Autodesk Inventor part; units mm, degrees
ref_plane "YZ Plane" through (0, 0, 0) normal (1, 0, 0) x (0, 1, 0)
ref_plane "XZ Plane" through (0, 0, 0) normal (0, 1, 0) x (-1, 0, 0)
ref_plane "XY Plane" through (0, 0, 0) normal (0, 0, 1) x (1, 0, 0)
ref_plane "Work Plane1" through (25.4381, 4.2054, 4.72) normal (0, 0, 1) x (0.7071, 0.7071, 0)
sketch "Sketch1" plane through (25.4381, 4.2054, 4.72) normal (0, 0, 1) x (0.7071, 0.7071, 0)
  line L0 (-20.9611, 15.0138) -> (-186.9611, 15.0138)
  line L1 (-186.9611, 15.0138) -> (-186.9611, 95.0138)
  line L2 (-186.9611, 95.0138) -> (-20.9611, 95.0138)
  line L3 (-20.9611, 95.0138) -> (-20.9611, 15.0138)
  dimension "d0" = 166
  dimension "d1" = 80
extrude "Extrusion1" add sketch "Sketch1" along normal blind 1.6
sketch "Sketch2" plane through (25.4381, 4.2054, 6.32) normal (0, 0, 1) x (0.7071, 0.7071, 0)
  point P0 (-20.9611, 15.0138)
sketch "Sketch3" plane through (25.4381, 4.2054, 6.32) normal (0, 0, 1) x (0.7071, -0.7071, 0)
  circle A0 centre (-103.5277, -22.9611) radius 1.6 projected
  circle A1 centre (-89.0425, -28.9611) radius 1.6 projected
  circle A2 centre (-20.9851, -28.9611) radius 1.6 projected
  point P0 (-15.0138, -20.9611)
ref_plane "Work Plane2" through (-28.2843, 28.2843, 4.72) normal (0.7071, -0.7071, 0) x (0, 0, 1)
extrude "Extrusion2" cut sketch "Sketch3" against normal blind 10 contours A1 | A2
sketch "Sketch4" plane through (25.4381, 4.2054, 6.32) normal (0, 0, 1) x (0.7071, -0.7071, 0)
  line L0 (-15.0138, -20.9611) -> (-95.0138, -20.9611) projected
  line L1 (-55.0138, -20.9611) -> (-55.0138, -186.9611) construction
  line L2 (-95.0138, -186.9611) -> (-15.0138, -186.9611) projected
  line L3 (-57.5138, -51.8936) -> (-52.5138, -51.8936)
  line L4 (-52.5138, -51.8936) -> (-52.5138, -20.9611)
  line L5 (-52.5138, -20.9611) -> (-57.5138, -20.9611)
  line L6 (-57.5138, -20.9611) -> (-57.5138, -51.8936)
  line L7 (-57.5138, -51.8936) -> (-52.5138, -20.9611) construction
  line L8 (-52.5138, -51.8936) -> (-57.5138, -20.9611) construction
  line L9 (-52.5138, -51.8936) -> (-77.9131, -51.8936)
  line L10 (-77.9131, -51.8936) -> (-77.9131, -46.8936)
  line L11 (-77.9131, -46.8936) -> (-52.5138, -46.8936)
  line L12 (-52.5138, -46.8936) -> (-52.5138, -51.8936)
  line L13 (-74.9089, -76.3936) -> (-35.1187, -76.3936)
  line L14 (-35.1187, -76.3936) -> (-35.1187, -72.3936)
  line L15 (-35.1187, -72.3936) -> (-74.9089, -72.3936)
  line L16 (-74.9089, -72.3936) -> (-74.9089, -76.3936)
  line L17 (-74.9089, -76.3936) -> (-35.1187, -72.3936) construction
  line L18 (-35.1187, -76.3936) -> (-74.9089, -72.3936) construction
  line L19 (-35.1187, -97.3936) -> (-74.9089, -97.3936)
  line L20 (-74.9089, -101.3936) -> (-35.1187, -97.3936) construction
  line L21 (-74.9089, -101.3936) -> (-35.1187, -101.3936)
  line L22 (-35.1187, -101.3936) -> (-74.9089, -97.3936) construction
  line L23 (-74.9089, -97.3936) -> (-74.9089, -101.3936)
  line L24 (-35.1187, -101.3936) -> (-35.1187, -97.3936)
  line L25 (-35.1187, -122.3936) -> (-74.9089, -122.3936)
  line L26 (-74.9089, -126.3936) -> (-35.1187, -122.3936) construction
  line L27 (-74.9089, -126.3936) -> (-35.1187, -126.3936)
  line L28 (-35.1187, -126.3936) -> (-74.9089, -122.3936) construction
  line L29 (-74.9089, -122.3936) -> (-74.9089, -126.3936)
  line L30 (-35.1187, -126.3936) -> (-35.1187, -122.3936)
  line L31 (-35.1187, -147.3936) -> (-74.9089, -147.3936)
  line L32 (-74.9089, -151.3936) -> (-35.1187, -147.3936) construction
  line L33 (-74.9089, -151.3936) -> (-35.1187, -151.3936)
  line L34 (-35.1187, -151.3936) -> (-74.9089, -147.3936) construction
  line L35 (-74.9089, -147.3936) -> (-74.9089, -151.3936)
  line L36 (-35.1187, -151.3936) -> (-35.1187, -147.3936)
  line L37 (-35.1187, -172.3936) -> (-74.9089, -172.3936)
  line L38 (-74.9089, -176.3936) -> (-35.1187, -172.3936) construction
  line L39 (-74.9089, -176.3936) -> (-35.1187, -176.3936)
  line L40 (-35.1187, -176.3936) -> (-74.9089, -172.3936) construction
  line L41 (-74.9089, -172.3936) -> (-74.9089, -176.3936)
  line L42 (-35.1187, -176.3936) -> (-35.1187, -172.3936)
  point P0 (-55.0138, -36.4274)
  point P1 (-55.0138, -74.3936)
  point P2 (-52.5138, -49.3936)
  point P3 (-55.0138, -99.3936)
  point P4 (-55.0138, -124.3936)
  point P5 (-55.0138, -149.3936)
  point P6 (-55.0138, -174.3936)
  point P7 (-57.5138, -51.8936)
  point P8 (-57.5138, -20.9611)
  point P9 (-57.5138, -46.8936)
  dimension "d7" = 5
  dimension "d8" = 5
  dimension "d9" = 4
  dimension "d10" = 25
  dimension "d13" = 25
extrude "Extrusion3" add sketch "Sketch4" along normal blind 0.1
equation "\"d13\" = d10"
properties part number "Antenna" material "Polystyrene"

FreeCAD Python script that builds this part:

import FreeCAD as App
import Part
import Sketcher

V = App.Vector
Q = App.Units.Quantity

doc = App.newDocument("Part")
body = doc.addObject("PartDesign::Body", "Body")

sketch1 = doc.addObject("Sketcher::SketchObject", "Sketch")
body.addObject(sketch1)
sketch1.AttachmentSupport = (doc.XY_Plane, [""])
sketch1.MapMode = "FlatFace"
sketch1.AttachmentOffset = App.Placement(V(0, 0, 4.72), App.Rotation())
sketch1.addGeometry([
    Part.LineSegment(V(-117, -117, 0), V(0, 0, 0)),
    Part.LineSegment(V(0, 0, 0), V(-57, 57, 0)),
    Part.LineSegment(V(-57, 57, 0), V(-174, -61, 0)),
    Part.LineSegment(V(-174, -61, 0), V(-117, -117, 0)),
], False)
sketch1.addConstraint([
    Sketcher.Constraint("Coincident", 0, 2, 1, 1),
    Sketcher.Constraint("Coincident", 1, 2, 2, 1),
    Sketcher.Constraint("Coincident", 2, 2, 3, 1),
    Sketcher.Constraint("Coincident", 3, 2, 0, 1),
    Sketcher.Constraint("Coincident", 0, 2, -1, 1),
    Sketcher.Constraint("Perpendicular", 0, 1),
    Sketcher.Constraint("Perpendicular", 1, 2),
    Sketcher.Constraint("Perpendicular", 2, 3),
    Sketcher.Constraint("Distance", 0, Q("166 mm")),
    Sketcher.Constraint("Distance", 1, Q("80 mm")),
    Sketcher.Constraint("Angle", 0, Q("45 deg")),
])
pad1 = doc.addObject("PartDesign::Pad", "Pad")
body.addObject(pad1)
pad1.Profile = sketch1
pad1.Length = 1.6

sketch2 = doc.addObject("Sketcher::SketchObject", "Sketch001")
body.addObject(sketch2)
sketch2.AttachmentSupport = (doc.XY_Plane, [""])
sketch2.MapMode = "FlatFace"
sketch2.AttachmentOffset = App.Placement(V(0, 0, 6.32), App.Rotation())
sketch2.addGeometry([
    Part.Circle(V(-58, 46.7, 0), V(0, 0, 1), 1.6),
    Part.Circle(V(-9.9, -1.4, 0), V(0, 0, 1), 1.6),
], False)
sketch2.addConstraint([
    Sketcher.Constraint("Equal", 0, 1),
    Sketcher.Constraint("Diameter", 0, Q("3.2 mm")),
    Sketcher.Constraint("DistanceX", 0, 3, -1, 1, Q("58.003 mm")),
    Sketcher.Constraint("DistanceY", -1, 1, 0, 3, Q("46.6894 mm")),
    Sketcher.Constraint("DistanceX", 1, 3, -1, 1, Q("9.8792 mm")),
    Sketcher.Constraint("DistanceY", 1, 3, -1, 1, Q("1.4345 mm")),
])
pocket1 = doc.addObject("PartDesign::Pocket", "Pocket")
body.addObject(pocket1)
pocket1.Profile = sketch2
pocket1.Length = 10

sketch3 = doc.addObject("Sketcher::SketchObject", "Sketch002")
body.addObject(sketch3)
sketch3.AttachmentSupport = (doc.XY_Plane, [""])
sketch3.MapMode = "FlatFace"
sketch3.AttachmentOffset = App.Placement(V(0, 0, 6.32), App.Rotation())
sketch3.addGeometry([
    Part.LineSegment(V(-26.5, 26.5, 0), V(-30.1, 30.1, 0)),
    Part.LineSegment(V(-30.1, 30.1, 0), V(-48.4, 11.7, 0)),
    Part.LineSegment(V(-48.4, 11.7, 0), V(-62.8, 26.1, 0)),
    Part.LineSegment(V(-62.8, 26.1, 0), V(-66.3, 22.6, 0)),
    Part.LineSegment(V(-66.3, 22.6, 0), V(-48.4, 4.6, 0)),
    Part.LineSegment(V(-48.4, 4.6, 0), V(-26.5, 26.5, 0)),
    Part.LineSegment(V(-78.7, 6, 0), V(-81.5, 3.2, 0)),
    Part.LineSegment(V(-81.5, 3.2, 0), V(-53.4, -25, 0)),
    Part.LineSegment(V(-53.4, -25, 0), V(-50.6, -22.2, 0)),
    Part.LineSegment(V(-50.6, -22.2, 0), V(-78.7, 6, 0)),
    Part.LineSegment(V(-71.1, -42.7, 0), V(-68.3, -39.8, 0)),
    Part.LineSegment(V(-68.3, -39.8, 0), V(-96.4, -11.7, 0)),
    Part.LineSegment(V(-96.4, -11.7, 0), V(-99.2, -14.5, 0)),
    Part.LineSegment(V(-99.2, -14.5, 0), V(-71.1, -42.7, 0)),
    Part.LineSegment(V(-88.8, -60.3, 0), V(-85.9, -57.5, 0)),
    Part.LineSegment(V(-85.9, -57.5, 0), V(-114.1, -29.4, 0)),
    Part.LineSegment(V(-114.1, -29.4, 0), V(-116.9, -32.2, 0)),
    Part.LineSegment(V(-116.9, -32.2, 0), V(-88.8, -60.3, 0)),
    Part.LineSegment(V(-106.4, -78, 0), V(-103.6, -75.2, 0)),
    Part.LineSegment(V(-103.6, -75.2, 0), V(-131.8, -47, 0)),
    Part.LineSegment(V(-131.8, -47, 0), V(-134.6, -49.9, 0)),
    Part.LineSegment(V(-134.6, -49.9, 0), V(-106.4, -78, 0)),
    Part.LineSegment(V(-124.1, -95.7, 0), V(-121.3, -92.9, 0)),
    Part.LineSegment(V(-121.3, -92.9, 0), V(-149.4, -64.7, 0)),
    Part.LineSegment(V(-149.4, -64.7, 0), V(-152.3, -67.6, 0)),
    Part.LineSegment(V(-152.3, -67.6, 0), V(-124.1, -95.7, 0)),
], False)
sketch3.addConstraint([
    Sketcher.Constraint("Coincident", 0, 2, 1, 1),
    Sketcher.Constraint("Coincident", 1, 2, 2, 1),
    Sketcher.Constraint("Coincident", 2, 2, 3, 1),
    Sketcher.Constraint("Coincident", 3, 2, 4, 1),
    Sketcher.Constraint("Coincident", 4, 2, 5, 1),
    Sketcher.Constraint("Coincident", 5, 2, 0, 1),
    Sketcher.Constraint("Coincident", 6, 2, 7, 1),
    Sketcher.Constraint("Coincident", 7, 2, 8, 1),
    Sketcher.Constraint("Coincident", 8, 2, 9, 1),
    Sketcher.Constraint("Coincident", 9, 2, 6, 1),
    Sketcher.Constraint("Coincident", 10, 2, 11, 1),
    Sketcher.Constraint("Coincident", 11, 2, 12, 1),
    Sketcher.Constraint("Coincident", 12, 2, 13, 1),
    Sketcher.Constraint("Coincident", 13, 2, 10, 1),
    Sketcher.Constraint("Coincident", 14, 2, 15, 1),
    Sketcher.Constraint("Coincident", 15, 2, 16, 1),
    Sketcher.Constraint("Coincident", 16, 2, 17, 1),
    Sketcher.Constraint("Coincident", 17, 2, 14, 1),
    Sketcher.Constraint("Coincident", 18, 2, 19, 1),
    Sketcher.Constraint("Coincident", 19, 2, 20, 1),
    Sketcher.Constraint("Coincident", 20, 2, 21, 1),
    Sketcher.Constraint("Coincident", 21, 2, 18, 1),
    Sketcher.Constraint("Coincident", 22, 2, 23, 1),
    Sketcher.Constraint("Coincident", 23, 2, 24, 1),
    Sketcher.Constraint("Coincident", 24, 2, 25, 1),
    Sketcher.Constraint("Coincident", 25, 2, 22, 1),
    Sketcher.Constraint("Perpendicular", 0, 1),
    Sketcher.Constraint("Perpendicular", 1, 2),
    Sketcher.Constraint("Perpendicular", 2, 3),
    Sketcher.Constraint("Perpendicular", 3, 4),
    Sketcher.Constraint("Perpendicular", 4, 5),
    Sketcher.Constraint("Parallel", 5, 6),
    Sketcher.Constraint("Perpendicular", 6, 7),
    Sketcher.Constraint("Perpendicular", 7, 8),
    Sketcher.Constraint("Perpendicular", 8, 9),
    Sketcher.Constraint("Perpendicular", 9, 10),
    Sketcher.Constraint("Perpendicular", 10, 11),
    Sketcher.Constraint("Perpendicular", 11, 12),
    Sketcher.Constraint("Perpendicular", 12, 13),
    Sketcher.Constraint("Perpendicular", 13, 14),
    Sketcher.Constraint("Perpendicular", 14, 15),
    Sketcher.Constraint("Perpendicular", 15, 16),
    Sketcher.Constraint("Perpendicular", 16, 17),
    Sketcher.Constraint("Perpendicular", 17, 18),
    Sketcher.Constraint("Perpendicular", 18, 19),
    Sketcher.Constraint("Perpendicular", 19, 20),
    Sketcher.Constraint("Perpendicular", 20, 21),
    Sketcher.Constraint("Perpendicular", 21, 22),
    Sketcher.Constraint("Perpendicular", 22, 23),
    Sketcher.Constraint("Perpendicular", 23, 24),
    Sketcher.Constraint("Perpendicular", 24, 25),
    Sketcher.Constraint("Vertical", 1, 2, 4, 2),
    Sketcher.Constraint("Equal", 0, 3),
    Sketcher.Constraint("Equal", 8, 10),
    Sketcher.Constraint("Equal", 9, 11),
    Sketcher.Constraint("Equal", 12, 14),
    Sketcher.Constraint("Equal", 13, 15),
    Sketcher.Constraint("Equal", 16, 18),
    Sketcher.Constraint("Equal", 17, 19),
    Sketcher.Constraint("Equal", 20, 22),
    Sketcher.Constraint("Equal", 21, 23),
    Sketcher.Constraint("Distance", 0, Q("5 mm")),
    Sketcher.Constraint("Distance", 6, Q("4 mm")),
    Sketcher.Constraint("DistanceX", 14, 2, -1, 1, Q("85.94 mm")),
    Sketcher.Constraint("DistanceX", 3, 2, 1, 2, Q("17.96 mm")),
    Sketcher.Constraint("DistanceY", 9, 2, 3, 2, Q("16.62 mm")),
    Sketcher.Constraint("DistanceX", 0, 2, -1, 1, Q("30.052 mm")),
    Sketcher.Constraint("DistanceY", -1, 1, 0, 2, Q("30.052 mm")),
    Sketcher.Constraint("DistanceX", 1, 2, -1, 1, Q("48.389 mm")),
    Sketcher.Constraint("DistanceX", 6, 2, -1, 1, Q("81.549 mm")),
    Sketcher.Constraint("DistanceX", 7, 2, -1, 1, Q("53.413 mm")),
    Sketcher.Constraint("DistanceY", 12, 2, -1, 1, Q("14.522 mm")),
    Sketcher.Constraint("DistanceY", 18, 2, -1, 1, Q("75.185 mm")),
    Sketcher.Constraint("DistanceX", 20, 2, -1, 1, Q("134.582 mm")),
    Sketcher.Constraint("DistanceY", 24, 2, -1, 1, Q("67.555 mm")),
    Sketcher.Constraint("DistanceX", 11, 2, 3, 2, Q("30.049 mm")),
    Sketcher.Constraint("DistanceY", 14, 2, 7, 2, Q("32.527 mm")),
    Sketcher.Constraint("DistanceX", 22, 2, 17, 2, Q("32.527 mm")),
])
pad2 = doc.addObject("PartDesign::Pad", "Pad001")
body.addObject(pad2)
pad2.Profile = sketch3
pad2.Length = 0.1

doc.recompute()
